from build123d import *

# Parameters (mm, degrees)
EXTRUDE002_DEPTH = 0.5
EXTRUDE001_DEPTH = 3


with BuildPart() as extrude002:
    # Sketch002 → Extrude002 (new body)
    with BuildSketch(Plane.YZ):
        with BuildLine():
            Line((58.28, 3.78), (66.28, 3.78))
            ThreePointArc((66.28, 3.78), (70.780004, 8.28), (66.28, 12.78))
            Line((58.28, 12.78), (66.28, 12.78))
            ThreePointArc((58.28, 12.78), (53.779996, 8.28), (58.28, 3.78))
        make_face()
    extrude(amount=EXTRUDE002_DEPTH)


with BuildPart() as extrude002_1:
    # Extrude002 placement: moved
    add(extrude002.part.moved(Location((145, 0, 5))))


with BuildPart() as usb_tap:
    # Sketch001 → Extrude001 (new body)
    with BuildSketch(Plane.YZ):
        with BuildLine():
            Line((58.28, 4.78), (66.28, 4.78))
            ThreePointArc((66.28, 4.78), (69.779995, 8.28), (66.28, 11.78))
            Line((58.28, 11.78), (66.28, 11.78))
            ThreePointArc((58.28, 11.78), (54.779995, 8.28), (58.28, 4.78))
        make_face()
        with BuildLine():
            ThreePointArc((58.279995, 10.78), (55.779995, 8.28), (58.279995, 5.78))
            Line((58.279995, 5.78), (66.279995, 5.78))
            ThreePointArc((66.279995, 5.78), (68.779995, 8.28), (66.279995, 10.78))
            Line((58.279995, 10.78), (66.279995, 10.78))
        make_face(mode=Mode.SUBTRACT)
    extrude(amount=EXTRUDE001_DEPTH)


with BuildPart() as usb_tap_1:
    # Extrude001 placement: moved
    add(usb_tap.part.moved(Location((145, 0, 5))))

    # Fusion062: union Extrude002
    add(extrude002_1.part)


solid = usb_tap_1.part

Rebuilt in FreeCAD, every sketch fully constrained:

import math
import FreeCAD as App
import Part
import Sketcher

V = App.Vector

doc = App.newDocument("Part")
params = doc.addObject("Spreadsheet::Sheet", "Params")
for row, (alias, value) in enumerate([
    ("sketch1_radius", "4.5 mm"),
    ("sketch1_width", "8 mm"),
    ("pad1_length", "0.5 mm"),
    ("sketch2_radius", "3.5 mm"),
    ("sketch2_radius2", "2.5 mm"),
    ("sketch2_width", "8 mm"),
    ("pad2_length", "3 mm"),
], start=1):
    params.set(f"A{row}", alias)
    params.set(f"B{row}", "=" + value)
    params.setAlias(f"B{row}", alias)

body = doc.addObject("PartDesign::Body", "Body")

# Sketch on YZ plane
sketch1 = body.newObject("Sketcher::SketchObject", "Sketch")
sketch1.AttachmentSupport = (doc.getObject("YZ_Plane"), [""])
sketch1.MapMode = "FlatFace"
sketch1.addGeometry(Part.LineSegment(V(58.3, 3.8, 0), V(66.3, 3.8, 0)), False)
sketch1.addGeometry(Part.ArcOfCircle(Part.Circle(V(66.3, 8.3, 0), V(0, 0, 1), 4.5), math.radians(-90), math.radians(90)), False)
sketch1.addGeometry(Part.LineSegment(V(66.3, 12.8, 0), V(58.3, 12.8, 0)), False)
sketch1.addGeometry(Part.ArcOfCircle(Part.Circle(V(58.3, 8.3, 0), V(0, 0, 1), 4.5), math.radians(90), math.radians(270)), False)
sketch1.addConstraint(Sketcher.Constraint("Tangent", 0, 2, 1, 1))
sketch1.addConstraint(Sketcher.Constraint("Tangent", 1, 2, 2, 1))
sketch1.addConstraint(Sketcher.Constraint("Tangent", 2, 2, 3, 1))
sketch1.addConstraint(Sketcher.Constraint("Tangent", 3, 2, 0, 1))
sketch1.addConstraint(Sketcher.Constraint("Horizontal", 0))
sketch1.addConstraint(Sketcher.Constraint("Horizontal", 2))
sketch1.addConstraint(Sketcher.Constraint("Radius", 1, 4.5))
sketch1.addConstraint(Sketcher.Constraint("DistanceX", 0, 1, 0, 2, 8.0))
sketch1.addConstraint(Sketcher.Constraint("DistanceY", -1, 1, 1, 3, 8.28))
sketch1.addConstraint(Sketcher.Constraint("DistanceX", -1, 1, 0, 2, 66.28))
sketch1.setExpression("Constraints[6]", "Params.sketch1_radius")
sketch1.setExpression("Constraints[7]", "Params.sketch1_width")
pad1 = body.newObject("PartDesign::Pad", "Pad")
pad1.Profile = sketch1
pad1.setExpression("Length", "Params.pad1_length")
body2 = doc.addObject("PartDesign::Body", "Body001")
doc.recompute()

body.Placement = App.Placement(V(145, 0, 5), App.Rotation(V(0, 0, 1), 0))
boolean = body2.newObject("PartDesign::Boolean", "Boolean")
boolean.Type = "Fuse"
boolean.addObjects([body])
body3 = doc.addObject("PartDesign::Body", "Body002")

# Sketch on YZ plane
sketch2 = body3.newObject("Sketcher::SketchObject", "Sketch001")
sketch2.AttachmentSupport = (doc.getObject("YZ_Plane002"), [""])
sketch2.MapMode = "FlatFace"
sketch2.addGeometry(Part.LineSegment(V(58.3, 4.8, 0), V(66.3, 4.8, 0)), False)
sketch2.addGeometry(Part.ArcOfCircle(Part.Circle(V(66.3, 8.3, 0), V(0, 0, 1), 3.5), math.radians(-90), math.radians(90)), False)
sketch2.addGeometry(Part.LineSegment(V(66.3, 11.8, 0), V(58.3, 11.8, 0)), False)
sketch2.addGeometry(Part.ArcOfCircle(Part.Circle(V(58.3, 8.3, 0), V(0, 0, 1), 3.5), math.radians(90), math.radians(270)), False)
sketch2.addGeometry(Part.ArcOfCircle(Part.Circle(V(58.3, 8.3, 0), V(0, 0, 1), 2.5), math.radians(90), math.radians(270)), False)
sketch2.addGeometry(Part.LineSegment(V(58.3, 10.8, 0), V(66.3, 10.8, 0)), False)
sketch2.addGeometry(Part.ArcOfCircle(Part.Circle(V(66.3, 8.3, 0), V(0, 0, 1), 2.5), math.radians(-90), math.radians(90)), False)
sketch2.addGeometry(Part.LineSegment(V(66.3, 5.8, 0), V(58.3, 5.8, 0)), False)
sketch2.addConstraint(Sketcher.Constraint("Tangent", 0, 2, 1, 1))
sketch2.addConstraint(Sketcher.Constraint("Tangent", 1, 2, 2, 1))
sketch2.addConstraint(Sketcher.Constraint("Tangent", 2, 2, 3, 1))
sketch2.addConstraint(Sketcher.Constraint("Tangent", 3, 2, 0, 1))
sketch2.addConstraint(Sketcher.Constraint("Tangent", 4, 1, 5, 1))
sketch2.addConstraint(Sketcher.Constraint("Tangent", 5, 2, 6, 2))
sketch2.addConstraint(Sketcher.Constraint("Tangent", 6, 1, 7, 1))
sketch2.addConstraint(Sketcher.Constraint("Tangent", 7, 2, 4, 2))
sketch2.addConstraint(Sketcher.Constraint("Horizontal", 0))
sketch2.addConstraint(Sketcher.Constraint("Horizontal", 2))
sketch2.addConstraint(Sketcher.Constraint("Horizontal", 5))
sketch2.addConstraint(Sketcher.Constraint("Horizontal", 7))
sketch2.addConstraint(Sketcher.Constraint("Coincident", 4, 3, 3, 3))
sketch2.addConstraint(Sketcher.Constraint("Equal", 2, 5))
sketch2.addConstraint(Sketcher.Constraint("Radius", 1, 3.5))
sketch2.addConstraint(Sketcher.Constraint("Radius", 4, 2.5))
sketch2.addConstraint(Sketcher.Constraint("DistanceX", 0, 1, 0, 2, 8.0))
sketch2.addConstraint(Sketcher.Constraint("DistanceY", -1, 1, 1, 3, 8.28))
sketch2.addConstraint(Sketcher.Constraint("DistanceX", -1, 1, 0, 2, 66.28))
sketch2.setExpression("Constraints[14]", "Params.sketch2_radius")
sketch2.setExpression("Constraints[15]", "Params.sketch2_radius2")
sketch2.setExpression("Constraints[16]", "Params.sketch2_width")
pad2 = body3.newObject("PartDesign::Pad", "Pad001")
pad2.Profile = sketch2
pad2.setExpression("Length", "Params.pad2_length")
body4 = doc.addObject("PartDesign::Body", "Body003")
doc.recompute()

body3.Placement = App.Placement(V(145, 0, 5), App.Rotation(V(0, 0, 1), 0))
boolean2 = body4.newObject("PartDesign::Boolean", "Boolean001")
boolean2.Type = "Fuse"
boolean2.addObjects([body3])
doc.recompute()

boolean3 = body4.newObject("PartDesign::Boolean", "Boolean002")
boolean3.Type = "Fuse"
boolean3.addObjects([body2])

doc.recompute()
